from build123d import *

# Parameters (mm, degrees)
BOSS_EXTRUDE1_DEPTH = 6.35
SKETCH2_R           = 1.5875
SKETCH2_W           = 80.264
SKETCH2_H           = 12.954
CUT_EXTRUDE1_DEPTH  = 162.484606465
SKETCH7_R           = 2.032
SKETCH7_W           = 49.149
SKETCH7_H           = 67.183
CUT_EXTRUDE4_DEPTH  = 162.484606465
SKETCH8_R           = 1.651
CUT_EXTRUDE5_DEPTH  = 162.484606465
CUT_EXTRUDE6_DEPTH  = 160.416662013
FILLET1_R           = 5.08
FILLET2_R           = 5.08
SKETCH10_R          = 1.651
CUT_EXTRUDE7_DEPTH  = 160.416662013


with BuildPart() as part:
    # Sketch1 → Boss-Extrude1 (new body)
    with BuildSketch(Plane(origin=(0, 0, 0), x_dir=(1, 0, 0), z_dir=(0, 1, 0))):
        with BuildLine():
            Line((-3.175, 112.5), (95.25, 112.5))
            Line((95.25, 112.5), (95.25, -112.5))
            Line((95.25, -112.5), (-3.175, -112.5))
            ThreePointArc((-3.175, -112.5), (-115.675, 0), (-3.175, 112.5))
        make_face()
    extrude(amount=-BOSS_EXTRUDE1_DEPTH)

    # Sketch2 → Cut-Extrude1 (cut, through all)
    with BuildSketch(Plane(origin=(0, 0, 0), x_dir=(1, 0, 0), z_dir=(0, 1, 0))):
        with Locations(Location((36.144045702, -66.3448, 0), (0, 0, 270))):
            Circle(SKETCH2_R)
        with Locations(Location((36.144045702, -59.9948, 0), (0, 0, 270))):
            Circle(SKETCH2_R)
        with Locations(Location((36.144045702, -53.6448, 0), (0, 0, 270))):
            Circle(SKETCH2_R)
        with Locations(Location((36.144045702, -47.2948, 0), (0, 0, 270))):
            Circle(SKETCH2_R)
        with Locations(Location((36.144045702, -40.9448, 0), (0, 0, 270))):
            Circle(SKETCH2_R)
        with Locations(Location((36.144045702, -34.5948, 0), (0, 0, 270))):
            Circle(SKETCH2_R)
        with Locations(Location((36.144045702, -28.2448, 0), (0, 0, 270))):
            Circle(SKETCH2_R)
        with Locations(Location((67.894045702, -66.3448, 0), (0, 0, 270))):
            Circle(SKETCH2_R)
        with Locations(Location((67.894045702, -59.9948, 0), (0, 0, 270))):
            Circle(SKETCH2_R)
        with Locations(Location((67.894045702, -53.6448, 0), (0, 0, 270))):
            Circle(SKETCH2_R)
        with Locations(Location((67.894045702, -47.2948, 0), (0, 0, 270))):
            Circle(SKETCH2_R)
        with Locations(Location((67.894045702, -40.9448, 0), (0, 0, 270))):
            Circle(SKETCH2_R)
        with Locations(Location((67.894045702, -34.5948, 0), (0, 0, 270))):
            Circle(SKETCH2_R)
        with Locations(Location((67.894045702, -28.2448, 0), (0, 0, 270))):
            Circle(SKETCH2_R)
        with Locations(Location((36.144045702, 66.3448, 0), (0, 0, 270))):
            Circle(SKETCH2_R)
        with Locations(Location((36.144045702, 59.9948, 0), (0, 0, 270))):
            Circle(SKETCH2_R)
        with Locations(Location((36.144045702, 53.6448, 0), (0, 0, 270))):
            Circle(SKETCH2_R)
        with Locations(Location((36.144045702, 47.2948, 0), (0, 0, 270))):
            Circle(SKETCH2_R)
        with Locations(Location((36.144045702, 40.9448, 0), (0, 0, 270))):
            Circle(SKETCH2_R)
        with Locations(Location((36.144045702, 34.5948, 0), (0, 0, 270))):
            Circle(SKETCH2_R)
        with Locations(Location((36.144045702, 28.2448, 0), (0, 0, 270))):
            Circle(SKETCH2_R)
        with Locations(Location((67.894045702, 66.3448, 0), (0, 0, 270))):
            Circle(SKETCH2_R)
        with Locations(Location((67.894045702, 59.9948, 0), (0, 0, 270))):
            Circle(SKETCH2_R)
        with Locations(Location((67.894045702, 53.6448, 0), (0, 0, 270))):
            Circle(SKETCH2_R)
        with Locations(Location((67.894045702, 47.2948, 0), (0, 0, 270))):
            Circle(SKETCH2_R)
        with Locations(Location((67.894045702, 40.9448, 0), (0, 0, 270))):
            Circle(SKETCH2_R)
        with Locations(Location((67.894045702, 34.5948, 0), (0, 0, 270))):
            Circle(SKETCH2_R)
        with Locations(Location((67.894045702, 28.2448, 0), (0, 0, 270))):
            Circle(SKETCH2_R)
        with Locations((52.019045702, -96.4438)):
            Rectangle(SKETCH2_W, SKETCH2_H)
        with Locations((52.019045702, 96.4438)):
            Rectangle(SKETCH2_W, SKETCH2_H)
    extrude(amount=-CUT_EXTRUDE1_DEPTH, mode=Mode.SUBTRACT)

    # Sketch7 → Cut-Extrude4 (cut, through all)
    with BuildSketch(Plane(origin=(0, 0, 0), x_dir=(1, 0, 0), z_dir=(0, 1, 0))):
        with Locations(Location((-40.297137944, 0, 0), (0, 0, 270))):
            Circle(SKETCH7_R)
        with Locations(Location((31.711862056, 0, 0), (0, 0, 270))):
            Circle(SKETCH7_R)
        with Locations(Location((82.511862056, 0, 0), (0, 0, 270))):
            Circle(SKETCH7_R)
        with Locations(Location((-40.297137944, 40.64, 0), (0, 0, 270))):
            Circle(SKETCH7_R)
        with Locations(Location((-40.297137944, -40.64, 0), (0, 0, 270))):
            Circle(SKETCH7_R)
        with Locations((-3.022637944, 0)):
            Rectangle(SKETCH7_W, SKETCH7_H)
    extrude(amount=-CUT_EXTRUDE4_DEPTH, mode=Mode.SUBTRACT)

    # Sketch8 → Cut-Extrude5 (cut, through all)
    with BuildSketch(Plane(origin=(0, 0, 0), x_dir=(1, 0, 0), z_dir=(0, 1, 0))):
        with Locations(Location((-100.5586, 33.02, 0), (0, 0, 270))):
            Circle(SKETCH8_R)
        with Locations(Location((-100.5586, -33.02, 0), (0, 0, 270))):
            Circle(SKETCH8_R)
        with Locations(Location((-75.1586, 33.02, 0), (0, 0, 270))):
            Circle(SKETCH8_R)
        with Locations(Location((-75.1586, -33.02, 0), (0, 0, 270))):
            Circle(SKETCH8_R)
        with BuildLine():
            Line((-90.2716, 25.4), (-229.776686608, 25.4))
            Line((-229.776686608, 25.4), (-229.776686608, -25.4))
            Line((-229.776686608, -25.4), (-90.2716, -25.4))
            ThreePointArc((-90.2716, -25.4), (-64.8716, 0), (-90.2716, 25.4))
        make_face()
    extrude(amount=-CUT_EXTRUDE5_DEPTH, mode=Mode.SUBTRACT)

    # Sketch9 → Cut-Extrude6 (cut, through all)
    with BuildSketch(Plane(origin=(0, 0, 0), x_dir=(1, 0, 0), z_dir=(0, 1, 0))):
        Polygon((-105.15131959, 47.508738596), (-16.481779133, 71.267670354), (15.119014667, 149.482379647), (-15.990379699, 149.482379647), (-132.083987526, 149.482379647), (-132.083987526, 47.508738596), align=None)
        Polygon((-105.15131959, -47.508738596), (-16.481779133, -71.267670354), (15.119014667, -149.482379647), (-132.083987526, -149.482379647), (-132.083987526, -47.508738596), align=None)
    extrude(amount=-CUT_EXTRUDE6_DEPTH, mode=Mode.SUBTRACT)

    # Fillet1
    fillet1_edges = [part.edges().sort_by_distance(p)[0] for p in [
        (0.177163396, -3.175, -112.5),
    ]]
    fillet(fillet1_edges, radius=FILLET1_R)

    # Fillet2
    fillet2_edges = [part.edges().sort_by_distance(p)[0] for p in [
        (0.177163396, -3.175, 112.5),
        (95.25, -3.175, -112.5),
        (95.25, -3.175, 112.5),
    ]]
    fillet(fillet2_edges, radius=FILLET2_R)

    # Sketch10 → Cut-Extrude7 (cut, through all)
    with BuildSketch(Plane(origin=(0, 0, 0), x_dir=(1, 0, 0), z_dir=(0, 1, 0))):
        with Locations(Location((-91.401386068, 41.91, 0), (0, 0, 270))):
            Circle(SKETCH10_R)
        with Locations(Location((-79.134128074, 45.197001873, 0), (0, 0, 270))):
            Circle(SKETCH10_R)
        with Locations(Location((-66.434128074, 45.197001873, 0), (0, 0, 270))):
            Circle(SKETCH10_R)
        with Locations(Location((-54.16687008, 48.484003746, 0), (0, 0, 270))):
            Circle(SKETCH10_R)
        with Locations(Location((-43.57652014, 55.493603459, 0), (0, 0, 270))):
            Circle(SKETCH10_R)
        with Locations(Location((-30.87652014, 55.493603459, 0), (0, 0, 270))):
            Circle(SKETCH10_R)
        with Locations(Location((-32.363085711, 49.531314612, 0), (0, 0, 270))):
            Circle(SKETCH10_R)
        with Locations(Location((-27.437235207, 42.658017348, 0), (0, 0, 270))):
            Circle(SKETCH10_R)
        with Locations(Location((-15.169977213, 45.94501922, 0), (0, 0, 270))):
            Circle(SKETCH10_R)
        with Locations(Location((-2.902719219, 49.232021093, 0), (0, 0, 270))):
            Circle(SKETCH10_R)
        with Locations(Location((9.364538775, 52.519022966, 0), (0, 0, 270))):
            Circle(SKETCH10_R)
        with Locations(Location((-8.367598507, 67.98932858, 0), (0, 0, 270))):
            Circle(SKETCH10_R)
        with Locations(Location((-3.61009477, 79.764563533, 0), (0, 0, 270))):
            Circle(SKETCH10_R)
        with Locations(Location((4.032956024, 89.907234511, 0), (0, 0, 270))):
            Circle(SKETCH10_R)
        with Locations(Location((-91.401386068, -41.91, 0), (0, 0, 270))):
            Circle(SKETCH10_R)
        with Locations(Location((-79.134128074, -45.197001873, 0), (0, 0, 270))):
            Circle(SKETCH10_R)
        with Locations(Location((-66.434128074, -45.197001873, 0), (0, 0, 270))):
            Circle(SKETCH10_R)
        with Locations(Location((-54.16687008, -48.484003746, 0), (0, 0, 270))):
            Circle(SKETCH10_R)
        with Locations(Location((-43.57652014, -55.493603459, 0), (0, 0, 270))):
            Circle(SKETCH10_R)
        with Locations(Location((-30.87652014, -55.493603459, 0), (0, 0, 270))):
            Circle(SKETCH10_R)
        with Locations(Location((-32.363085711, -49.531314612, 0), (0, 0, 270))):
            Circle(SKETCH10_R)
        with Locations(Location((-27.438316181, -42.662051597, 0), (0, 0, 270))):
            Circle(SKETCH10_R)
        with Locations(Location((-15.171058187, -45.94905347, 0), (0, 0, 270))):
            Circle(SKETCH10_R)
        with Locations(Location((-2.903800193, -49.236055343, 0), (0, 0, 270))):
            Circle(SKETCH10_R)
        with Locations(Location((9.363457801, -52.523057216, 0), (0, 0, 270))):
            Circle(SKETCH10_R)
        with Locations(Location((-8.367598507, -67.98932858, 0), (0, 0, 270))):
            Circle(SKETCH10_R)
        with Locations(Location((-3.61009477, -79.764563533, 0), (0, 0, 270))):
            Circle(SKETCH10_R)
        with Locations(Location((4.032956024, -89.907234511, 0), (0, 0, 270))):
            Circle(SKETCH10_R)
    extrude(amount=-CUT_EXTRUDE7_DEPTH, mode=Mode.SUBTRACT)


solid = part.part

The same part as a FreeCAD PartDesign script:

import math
import FreeCAD as App
import Part
import Sketcher
Q = App.Units.Quantity


def edges_at(feature, points):
    """Names of the edges that pass closest to the given points."""
    edges = feature.Shape.Edges
    near = lambda p: min(range(len(edges)), key=lambda i: edges[i].distToShape(Part.Vertex(*p))[0])
    return sorted({f"Edge{near(p) + 1}" for p in points})

doc = App.newDocument("Part")
body = doc.addObject("PartDesign::Body", "Body")

# Sketch on XZ plane
sketch1 = doc.addObject("Sketcher::SketchObject", "Sketch")
body.addObject(sketch1)
sketch1.AttachmentSupport = (doc.XZ_Plane, [""])
sketch1.MapMode = "FlatFace"
sketch1.addGeometry([
    Part.LineSegment(App.Vector(95, -112, 0), App.Vector(-3, -112, 0)),
    Part.ArcOfCircle(Part.Circle(App.Vector(-3, 0, 0), App.Vector(0, 0, 1), 112), math.radians(90), math.radians(270)),
    Part.LineSegment(App.Vector(-3, 112, 0), App.Vector(95, 112, 0)),
    Part.LineSegment(App.Vector(95, 112, 0), App.Vector(95, -112, 0)),
], False)
sketch1.addConstraint([
    Sketcher.Constraint("Tangent", 0, 2, 1, 2),
    Sketcher.Constraint("Tangent", 1, 1, 2, 1),
    Sketcher.Constraint("Coincident", 2, 2, 3, 1),
    Sketcher.Constraint("Coincident", 3, 2, 0, 1),
    Sketcher.Constraint("Horizontal", 0),
    Sketcher.Constraint("Horizontal", 2),
    Sketcher.Constraint("Vertical", 3),
    Sketcher.Constraint("PointOnObject", 1, 3, -1),
    Sketcher.Constraint("DistanceX", 0, 2, 0, 1, Q("3.875 in")),
    Sketcher.Constraint("DistanceX", -1, 1, 2, 2, Q("3.75 in")),
    Sketcher.Constraint("Radius", 1, 112.5),
])
pad1 = doc.addObject("PartDesign::Pad", "Pad")
body.addObject(pad1)
pad1.Profile = sketch1
pad1.Length = Q("0.25 in")

# Sketch on XZ plane
sketch2 = doc.addObject("Sketcher::SketchObject", "Sketch001")
body.addObject(sketch2)
sketch2.AttachmentSupport = (doc.XZ_Plane, [""])
sketch2.MapMode = "FlatFace"
sketch2.addGeometry([
    Part.Circle(App.Vector(36.1, 66.3, 0), App.Vector(0, 0, 1), 1.6),  # 0
    Part.Circle(App.Vector(36.1, 60, 0), App.Vector(0, 0, 1), 1.6),  # 1
    Part.Circle(App.Vector(36.1, 53.6, 0), App.Vector(0, 0, 1), 1.6),  # 2
    Part.Circle(App.Vector(36.1, 47.3, 0), App.Vector(0, 0, 1), 1.6),  # 3
    Part.Circle(App.Vector(36.1, 40.9, 0), App.Vector(0, 0, 1), 1.6),  # 4
    Part.Circle(App.Vector(36.1, 34.6, 0), App.Vector(0, 0, 1), 1.6),  # 5
    Part.Circle(App.Vector(36.1, 28.2, 0), App.Vector(0, 0, 1), 1.6),  # 6
    Part.Circle(App.Vector(67.9, 66.3, 0), App.Vector(0, 0, 1), 1.6),  # 7
    Part.Circle(App.Vector(67.9, 60, 0), App.Vector(0, 0, 1), 1.6),  # 8
    Part.Circle(App.Vector(67.9, 53.6, 0), App.Vector(0, 0, 1), 1.6),  # 9
    Part.Circle(App.Vector(67.9, 47.3, 0), App.Vector(0, 0, 1), 1.6),  # 10
    Part.Circle(App.Vector(67.9, 40.9, 0), App.Vector(0, 0, 1), 1.6),  # 11
    Part.Circle(App.Vector(67.9, 34.6, 0), App.Vector(0, 0, 1), 1.6),  # 12
    Part.Circle(App.Vector(67.9, 28.2, 0), App.Vector(0, 0, 1), 1.6),  # 13
    Part.Circle(App.Vector(36.1, -66.3, 0), App.Vector(0, 0, 1), 1.6),  # 14
    Part.Circle(App.Vector(36.1, -60, 0), App.Vector(0, 0, 1), 1.6),  # 15
    Part.Circle(App.Vector(36.1, -53.6, 0), App.Vector(0, 0, 1), 1.6),  # 16
    Part.Circle(App.Vector(36.1, -47.3, 0), App.Vector(0, 0, 1), 1.6),  # 17
    Part.Circle(App.Vector(36.1, -40.9, 0), App.Vector(0, 0, 1), 1.6),  # 18
    Part.Circle(App.Vector(36.1, -34.6, 0), App.Vector(0, 0, 1), 1.6),  # 19
    Part.Circle(App.Vector(36.1, -28.2, 0), App.Vector(0, 0, 1), 1.6),  # 20
    Part.Circle(App.Vector(67.9, -66.3, 0), App.Vector(0, 0, 1), 1.6),  # 21
    Part.Circle(App.Vector(67.9, -60, 0), App.Vector(0, 0, 1), 1.6),  # 22
    Part.Circle(App.Vector(67.9, -53.6, 0), App.Vector(0, 0, 1), 1.6),  # 23
    Part.Circle(App.Vector(67.9, -47.3, 0), App.Vector(0, 0, 1), 1.6),  # 24
    Part.Circle(App.Vector(67.9, -40.9, 0), App.Vector(0, 0, 1), 1.6),  # 25
    Part.Circle(App.Vector(67.9, -34.6, 0), App.Vector(0, 0, 1), 1.6),  # 26
    Part.Circle(App.Vector(67.9, -28.2, 0), App.Vector(0, 0, 1), 1.6),  # 27
    Part.LineSegment(App.Vector(11.9, 90, 0), App.Vector(11.9, 102.9, 0)),  # 28
    Part.LineSegment(App.Vector(11.9, 102.9, 0), App.Vector(92.2, 102.9, 0)),  # 29
    Part.LineSegment(App.Vector(92.2, 102.9, 0), App.Vector(92.2, 90, 0)),  # 30
    Part.LineSegment(App.Vector(92.2, 90, 0), App.Vector(11.9, 90, 0)),  # 31
    Part.LineSegment(App.Vector(11.9, -102.9, 0), App.Vector(11.9, -90, 0)),  # 32
    Part.LineSegment(App.Vector(11.9, -90, 0), App.Vector(92.2, -90, 0)),  # 33
    Part.LineSegment(App.Vector(92.2, -90, 0), App.Vector(92.2, -102.9, 0)),  # 34
    Part.LineSegment(App.Vector(92.2, -102.9, 0), App.Vector(11.9, -102.9, 0)),  # 35
], False)
sketch2.addConstraint([
    Sketcher.Constraint("Coincident", 28, 2, 29, 1),
    Sketcher.Constraint("Coincident", 29, 2, 30, 1),
    Sketcher.Constraint("Coincident", 30, 2, 31, 1),
    Sketcher.Constraint("Coincident", 31, 2, 28, 1),
    Sketcher.Constraint("Coincident", 32, 2, 33, 1),
    Sketcher.Constraint("Coincident", 33, 2, 34, 1),
    Sketcher.Constraint("Coincident", 34, 2, 35, 1),
    Sketcher.Constraint("Coincident", 35, 2, 32, 1),
    Sketcher.Constraint("Vertical", 28),
    Sketcher.Constraint("Horizontal", 29),
    Sketcher.Constraint("Vertical", 30),
    Sketcher.Constraint("Horizontal", 31),
    Sketcher.Constraint("Vertical", 32),
    Sketcher.Constraint("Horizontal", 33),
    Sketcher.Constraint("Vertical", 34),
    Sketcher.Constraint("Horizontal", 35),
    Sketcher.Constraint("Equal", 0, 1),
    Sketcher.Constraint("Equal", 1, 2),
    Sketcher.Constraint("Equal", 2, 3),
    Sketcher.Constraint("Equal", 3, 4),
    Sketcher.Constraint("Equal", 4, 5),
    Sketcher.Constraint("Equal", 5, 6),
    Sketcher.Constraint("Equal", 6, 7),
    Sketcher.Constraint("Equal", 7, 8),
    Sketcher.Constraint("Equal", 8, 9),
    Sketcher.Constraint("Equal", 9, 10),
    Sketcher.Constraint("Equal", 10, 11),
    Sketcher.Constraint("Equal", 11, 12),
    Sketcher.Constraint("Equal", 12, 13),
    Sketcher.Constraint("Equal", 13, 14),
    Sketcher.Constraint("Equal", 14, 15),
    Sketcher.Constraint("Equal", 15, 16),
    Sketcher.Constraint("Equal", 16, 17),
    Sketcher.Constraint("Equal", 17, 18),
    Sketcher.Constraint("Equal", 18, 19),
    Sketcher.Constraint("Equal", 19, 20),
    Sketcher.Constraint("Equal", 20, 21),
    Sketcher.Constraint("Equal", 21, 22),
    Sketcher.Constraint("Equal", 22, 23),
    Sketcher.Constraint("Equal", 23, 24),
    Sketcher.Constraint("Equal", 24, 25),
    Sketcher.Constraint("Equal", 25, 26),
    Sketcher.Constraint("Equal", 26, 27),
    Sketcher.Constraint("Symmetric", 0, 3, 14, 3, -1),
    Sketcher.Constraint("Symmetric", 1, 3, 15, 3, -1),
    Sketcher.Constraint("Symmetric", 2, 3, 16, 3, -1),
    Sketcher.Constraint("Symmetric", 3, 3, 17, 3, -1),
    Sketcher.Constraint("Symmetric", 4, 3, 18, 3, -1),
    Sketcher.Constraint("Symmetric", 5, 3, 19, 3, -1),
    Sketcher.Constraint("Symmetric", 6, 3, 20, 3, -1),
    Sketcher.Constraint("Symmetric", 7, 3, 21, 3, -1),
    Sketcher.Constraint("Symmetric", 8, 3, 22, 3, -1),
    Sketcher.Constraint("Symmetric", 9, 3, 23, 3, -1),
    Sketcher.Constraint("Symmetric", 10, 3, 24, 3, -1),
    Sketcher.Constraint("Symmetric", 11, 3, 25, 3, -1),
    Sketcher.Constraint("Symmetric", 12, 3, 26, 3, -1),
    Sketcher.Constraint("Symmetric", 13, 3, 27, 3, -1),
    Sketcher.Constraint("Symmetric", 31, 2, 32, 2, -1),
    Sketcher.Constraint("Symmetric", 29, 2, 34, 2, -1),
    Sketcher.Constraint("Horizontal", 0, 3, 7, 3),
    Sketcher.Constraint("Horizontal", 1, 3, 8, 3),
    Sketcher.Constraint("Horizontal", 2, 3, 9, 3),
    Sketcher.Constraint("Horizontal", 3, 3, 10, 3),
    Sketcher.Constraint("Horizontal", 4, 3, 11, 3),
    Sketcher.Constraint("Horizontal", 5, 3, 12, 3),
    Sketcher.Constraint("Horizontal", 6, 3, 13, 3),
    Sketcher.Constraint("Vertical", 0, 3, 1, 3),
    Sketcher.Constraint("Vertical", 1, 3, 2, 3),
    Sketcher.Constraint("Vertical", 2, 3, 3, 3),
    Sketcher.Constraint("Vertical", 3, 3, 4, 3),
    Sketcher.Constraint("Vertical", 4, 3, 5, 3),
    Sketcher.Constraint("Vertical", 5, 3, 6, 3),
    Sketcher.Constraint("Vertical", 7, 3, 8, 3),
    Sketcher.Constraint("Vertical", 8, 3, 9, 3),
    Sketcher.Constraint("Vertical", 9, 3, 10, 3),
    Sketcher.Constraint("Vertical", 10, 3, 11, 3),
    Sketcher.Constraint("Vertical", 11, 3, 12, 3),
    Sketcher.Constraint("Vertical", 12, 3, 13, 3),
    Sketcher.Constraint("Diameter", 0, Q("0.125 in")),
    Sketcher.Constraint("DistanceY", 4, 3, 0, 3, Q("1 in")),
    Sketcher.Constraint("DistanceY", 5, 3, 1, 3, Q("1 in")),
    Sketcher.Constraint("DistanceY", 6, 3, 2, 3, Q("1 in")),
    Sketcher.Constraint("DistanceX", 29, 1, 29, 2, Q("3.16 in")),
    Sketcher.Constraint("DistanceY", 28, 1, 28, 2, Q("0.51 in")),
    Sketcher.Constraint("DistanceY", 2, 3, 0, 3, Q("0.5 in")),
    Sketcher.Constraint("DistanceY", 3, 3, 1, 3, Q("0.5 in")),
    Sketcher.Constraint("DistanceY", 1, 3, 0, 3, Q("0.25 in")),
    Sketcher.Constraint("DistanceX", 0, 3, 7, 3, Q("1.25 in")),
    Sketcher.Constraint("DistanceY", 0, 3, 28, 2, Q("1.44 in")),
    Sketcher.Constraint("DistanceY", -1, 1, 0, 3, Q("2.612 in")),
    Sketcher.Constraint("DistanceX", 28, 2, 0, 3, Q("0.955 in")),
    Sketcher.Constraint("DistanceX", -1, 1, 0, 3, 36.144046),
])
pocket1 = doc.addObject("PartDesign::Pocket", "Pocket")
body.addObject(pocket1)
pocket1.Profile = sketch2
pocket1.Type = "ThroughAll"
pocket1.Reversed = True

# Sketch on XZ plane
sketch3 = doc.addObject("Sketcher::SketchObject", "Sketch002")
body.addObject(sketch3)
sketch3.AttachmentSupport = (doc.XZ_Plane, [""])
sketch3.MapMode = "FlatFace"
sketch3.addGeometry([
    Part.Circle(App.Vector(-40.3, 0, 0), App.Vector(0, 0, 1), 2),  # 0
    Part.Circle(App.Vector(31.7, 0, 0), App.Vector(0, 0, 1), 2),  # 1
    Part.Circle(App.Vector(82.5, 0, 0), App.Vector(0, 0, 1), 2),  # 2
    Part.Circle(App.Vector(-40.3, -40.6, 0), App.Vector(0, 0, 1), 2),  # 3
    Part.Circle(App.Vector(-40.3, 40.6, 0), App.Vector(0, 0, 1), 2),  # 4
    Part.LineSegment(App.Vector(-27.6, -33.6, 0), App.Vector(-27.6, 33.6, 0)),  # 5
    Part.LineSegment(App.Vector(-27.6, 33.6, 0), App.Vector(21.6, 33.6, 0)),  # 6
    Part.LineSegment(App.Vector(21.6, 33.6, 0), App.Vector(21.6, -33.6, 0)),  # 7
    Part.LineSegment(App.Vector(21.6, -33.6, 0), App.Vector(-27.6, -33.6, 0)),  # 8
], False)
sketch3.addConstraint([
    Sketcher.Constraint("Coincident", 5, 2, 6, 1),
    Sketcher.Constraint("Coincident", 6, 2, 7, 1),
    Sketcher.Constraint("Coincident", 7, 2, 8, 1),
    Sketcher.Constraint("Coincident", 8, 2, 5, 1),
    Sketcher.Constraint("Vertical", 5),
    Sketcher.Constraint("Horizontal", 6),
    Sketcher.Constraint("Vertical", 7),
    Sketcher.Constraint("Horizontal", 8),
    Sketcher.Constraint("Equal", 0, 1),
    Sketcher.Constraint("Equal", 1, 2),
    Sketcher.Constraint("Equal", 2, 3),
    Sketcher.Constraint("Equal", 3, 4),
    Sketcher.Constraint("Symmetric", 3, 3, 4, 3, -1),
    Sketcher.Constraint("PointOnObject", 0, 3, -1),
    Sketcher.Constraint("PointOnObject", 1, 3, -1),
    Sketcher.Constraint("PointOnObject", 2, 3, -1),
    Sketcher.Constraint("Vertical", 0, 3, 3, 3),
    Sketcher.Constraint("Diameter", 0, Q("0.16 in")),
    Sketcher.Constraint("DistanceX", 1, 3, 2, 3, Q("2 in")),
    Sketcher.Constraint("DistanceY", 3, 3, -1, 1, Q("1.6 in")),
    Sketcher.Constraint("DistanceX", 4, 3, 5, 2, Q("0.5 in")),
    Sketcher.Constraint("DistanceX", 6, 2, 1, 3, Q("0.4 in")),
    Sketcher.Constraint("DistanceX", 6, 1, 6, 2, Q("1.935 in")),
    Sketcher.Constraint("DistanceY", 5, 1, 5, 2, Q("2.645 in")),
    Sketcher.Constraint("DistanceY", -1, 1, 5, 2, Q("1.3225 in")),
    Sketcher.Constraint("DistanceX", 0, 3, -1, 1, 40.297138),
])
pocket2 = doc.addObject("PartDesign::Pocket", "Pocket001")
body.addObject(pocket2)
pocket2.Profile = sketch3
pocket2.Type = "ThroughAll"
pocket2.Reversed = True

# Sketch on XZ plane
sketch4 = doc.addObject("Sketcher::SketchObject", "Sketch003")
body.addObject(sketch4)
sketch4.AttachmentSupport = (doc.XZ_Plane, [""])
sketch4.MapMode = "FlatFace"
sketch4.addGeometry([
    Part.Circle(App.Vector(-100.6, -33, 0), App.Vector(0, 0, 1), 1.7),  # 0
    Part.Circle(App.Vector(-100.6, 33, 0), App.Vector(0, 0, 1), 1.7),  # 1
    Part.Circle(App.Vector(-75.2, -33, 0), App.Vector(0, 0, 1), 1.7),  # 2
    Part.Circle(App.Vector(-75.2, 33, 0), App.Vector(0, 0, 1), 1.7),  # 3
    Part.LineSegment(App.Vector(-90.3, -25.4, 0), App.Vector(-229.8, -25.4, 0)),  # 4
    Part.LineSegment(App.Vector(-229.8, -25.4, 0), App.Vector(-229.8, 25.4, 0)),  # 5
    Part.LineSegment(App.Vector(-229.8, 25.4, 0), App.Vector(-90.3, 25.4, 0)),  # 6
    Part.ArcOfCircle(Part.Circle(App.Vector(-90.3, 0, 0), App.Vector(0, 0, 1), 25.4), math.radians(-90), math.radians(90)),  # 7
], False)
sketch4.addConstraint([
    Sketcher.Constraint("Coincident", 4, 2, 5, 1),
    Sketcher.Constraint("Coincident", 5, 2, 6, 1),
    Sketcher.Constraint("Tangent", 6, 2, 7, 2),
    Sketcher.Constraint("Tangent", 7, 1, 4, 1),
    Sketcher.Constraint("Horizontal", 4),
    Sketcher.Constraint("Vertical", 5),
    Sketcher.Constraint("Horizontal", 6),
    Sketcher.Constraint("Equal", 0, 1),
    Sketcher.Constraint("Equal", 1, 2),
    Sketcher.Constraint("Equal", 2, 3),
    Sketcher.Constraint("Symmetric", 0, 3, 1, 3, -1),
    Sketcher.Constraint("Symmetric", 2, 3, 3, 3, -1),
    Sketcher.Constraint("PointOnObject", 7, 3, -1),
    Sketcher.Constraint("Horizontal", 0, 3, 2, 3),
    Sketcher.Constraint("Radius", 7, Q("1 in")),
    Sketcher.Constraint("Diameter", 0, Q("0.13 in")),
    Sketcher.Constraint("DistanceX", 0, 3, 2, 3, Q("1 in")),
    Sketcher.Constraint("DistanceY", 0, 3, -1, 1, Q("1.3 in")),
    Sketcher.Constraint("DistanceX", 0, 3, -1, 1, Q("3.959 in")),
    Sketcher.Constraint("DistanceX", 7, 3, -1, 1, Q("3.554 in")),
    Sketcher.Constraint("DistanceX", 4, 2, 4, 1, 139.505087),
])
pocket3 = doc.addObject("PartDesign::Pocket", "Pocket002")
body.addObject(pocket3)
pocket3.Profile = sketch4
pocket3.Type = "ThroughAll"
pocket3.Reversed = True

# Sketch on XZ plane
sketch5 = doc.addObject("Sketcher::SketchObject", "Sketch004")
body.addObject(sketch5)
sketch5.AttachmentSupport = (doc.XZ_Plane, [""])
sketch5.MapMode = "FlatFace"
sketch5.addGeometry([
    Part.LineSegment(App.Vector(-105, -48, 0), App.Vector(-16, -71, 0)),  # 0
    Part.LineSegment(App.Vector(-16, -71, 0), App.Vector(15, -149, 0)),  # 1
    Part.LineSegment(App.Vector(15, -149, 0), App.Vector(-132, -149, 0)),  # 2
    Part.LineSegment(App.Vector(-132, -149, 0), App.Vector(-132, -48, 0)),  # 3
    Part.LineSegment(App.Vector(-132, -48, 0), App.Vector(-105, -48, 0)),  # 4
    Part.LineSegment(App.Vector(-16, 71, 0), App.Vector(-105, 48, 0)),  # 5
    Part.LineSegment(App.Vector(-105, 48, 0), App.Vector(-132, 48, 0)),  # 6
    Part.LineSegment(App.Vector(-132, 48, 0), App.Vector(-132, 149, 0)),  # 7
    Part.LineSegment(App.Vector(-132, 149, 0), App.Vector(15, 149, 0)),  # 8
    Part.LineSegment(App.Vector(15, 149, 0), App.Vector(-16, 71, 0)),  # 9
], False)
sketch5.addConstraint([
    Sketcher.Constraint("Coincident", 0, 2, 1, 1),
    Sketcher.Constraint("Coincident", 1, 2, 2, 1),
    Sketcher.Constraint("Coincident", 2, 2, 3, 1),
    Sketcher.Constraint("Coincident", 3, 2, 4, 1),
    Sketcher.Constraint("Coincident", 4, 2, 0, 1),
    Sketcher.Constraint("Coincident", 5, 2, 6, 1),
    Sketcher.Constraint("Coincident", 6, 2, 7, 1),
    Sketcher.Constraint("Coincident", 7, 2, 8, 1),
    Sketcher.Constraint("Coincident", 8, 2, 9, 1),
    Sketcher.Constraint("Coincident", 9, 2, 5, 1),
    Sketcher.Constraint("Horizontal", 2),
    Sketcher.Constraint("Vertical", 3),
    Sketcher.Constraint("Horizontal", 4),
    Sketcher.Constraint("Horizontal", 6),
    Sketcher.Constraint("Vertical", 7),
    Sketcher.Constraint("Horizontal", 8),
    Sketcher.Constraint("Symmetric", 4, 2, 5, 2, -1),
    Sketcher.Constraint("Symmetric", 2, 2, 7, 2, -1),
    Sketcher.Constraint("Symmetric", 0, 2, 9, 2, -1),
    Sketcher.Constraint("Vertical", 1, 2, 8, 2),
    Sketcher.Constraint("Angle", 0, Q("-15 deg")),
    Sketcher.Constraint("Angle", 1, Q("-68 deg")),
    Sketcher.Constraint("DistanceY", 3, 1, 3, 2, 101.973641),
    Sketcher.Constraint("Distance", 1, 84.357281),
    Sketcher.Constraint("DistanceX", 2, 2, 2, 1, 147.203002),
    Sketcher.Constraint("DistanceX", 0, 2, -1, 1, 16.481779),
    Sketcher.Constraint("DistanceY", 0, 2, -1, 1, 71.26767),
])
pocket4 = doc.addObject("PartDesign::Pocket", "Pocket003")
body.addObject(pocket4)
pocket4.Profile = sketch5
pocket4.Type = "ThroughAll"
pocket4.Reversed = True
doc.recompute()

fillet = doc.addObject("PartDesign::Fillet", "Fillet")
body.addObject(fillet)
fillet.Base = (pocket4, edges_at(pocket4, [(0.177, -3.175, -112.5)]))
fillet.Radius = Q("0.2 in")
doc.recompute()

fillet2 = doc.addObject("PartDesign::Fillet", "Fillet001")
body.addObject(fillet2)
fillet2.Base = (fillet, edges_at(fillet, [(0.177, -3.175, 112.5), (95.25, -3.175, -112.5), (95.25, -3.175, 112.5)]))
fillet2.Radius = Q("0.2 in")

# Sketch on XZ plane
sketch6 = doc.addObject("Sketcher::SketchObject", "Sketch005")
body.addObject(sketch6)
sketch6.AttachmentSupport = (doc.XZ_Plane, [""])
sketch6.MapMode = "FlatFace"
sketch6.addGeometry([
    Part.Circle(App.Vector(-91.4, -41.9, 0), App.Vector(0, 0, 1), 1.7),  # 0
    Part.Circle(App.Vector(-79.1, -45.2, 0), App.Vector(0, 0, 1), 1.7),  # 1
    Part.Circle(App.Vector(-66.4, -45.2, 0), App.Vector(0, 0, 1), 1.7),  # 2
    Part.Circle(App.Vector(-54.2, -48.5, 0), App.Vector(0, 0, 1), 1.7),  # 3
    Part.Circle(App.Vector(-43.6, -55.5, 0), App.Vector(0, 0, 1), 1.7),  # 4
    Part.Circle(App.Vector(-30.9, -55.5, 0), App.Vector(0, 0, 1), 1.7),  # 5
    Part.Circle(App.Vector(-32.4, -49.5, 0), App.Vector(0, 0, 1), 1.7),  # 6
    Part.Circle(App.Vector(-27.4, -42.7, 0), App.Vector(0, 0, 1), 1.7),  # 7
    Part.Circle(App.Vector(-15.2, -45.9, 0), App.Vector(0, 0, 1), 1.7),  # 8
    Part.Circle(App.Vector(-2.9, -49.2, 0), App.Vector(0, 0, 1), 1.7),  # 9
    Part.Circle(App.Vector(9.4, -52.5, 0), App.Vector(0, 0, 1), 1.7),  # 10
    Part.Circle(App.Vector(-8.4, -68, 0), App.Vector(0, 0, 1), 1.7),  # 11
    Part.Circle(App.Vector(-3.6, -79.8, 0), App.Vector(0, 0, 1), 1.7),  # 12
    Part.Circle(App.Vector(4, -89.9, 0), App.Vector(0, 0, 1), 1.7),  # 13
    Part.Circle(App.Vector(-91.4, 41.9, 0), App.Vector(0, 0, 1), 1.7),  # 14
    Part.Circle(App.Vector(-79.1, 45.2, 0), App.Vector(0, 0, 1), 1.7),  # 15
    Part.Circle(App.Vector(-66.4, 45.2, 0), App.Vector(0, 0, 1), 1.7),  # 16
    Part.Circle(App.Vector(-54.2, 48.5, 0), App.Vector(0, 0, 1), 1.7),  # 17
    Part.Circle(App.Vector(-43.6, 55.5, 0), App.Vector(0, 0, 1), 1.7),  # 18
    Part.Circle(App.Vector(-30.9, 55.5, 0), App.Vector(0, 0, 1), 1.7),  # 19
    Part.Circle(App.Vector(-32.4, 49.5, 0), App.Vector(0, 0, 1), 1.7),  # 20
    Part.Circle(App.Vector(-27.4, 42.7, 0), App.Vector(0, 0, 1), 1.7),  # 21
    Part.Circle(App.Vector(-15.2, 45.9, 0), App.Vector(0, 0, 1), 1.7),  # 22
    Part.Circle(App.Vector(-2.9, 49.2, 0), App.Vector(0, 0, 1), 1.7),  # 23
    Part.Circle(App.Vector(9.4, 52.5, 0), App.Vector(0, 0, 1), 1.7),  # 24
    Part.Circle(App.Vector(-8.4, 68, 0), App.Vector(0, 0, 1), 1.7),  # 25
    Part.Circle(App.Vector(-3.6, 79.8, 0), App.Vector(0, 0, 1), 1.7),  # 26
    Part.Circle(App.Vector(4, 89.9, 0), App.Vector(0, 0, 1), 1.7),  # 27
], False)
sketch6.addConstraint([
    Sketcher.Constraint("Equal", 0, 1),
    Sketcher.Constraint("Equal", 1, 2),
    Sketcher.Constraint("Equal", 2, 3),
    Sketcher.Constraint("Equal", 3, 4),
    Sketcher.Constraint("Equal", 4, 5),
    Sketcher.Constraint("Equal", 5, 6),
    Sketcher.Constraint("Equal", 6, 7),
    Sketcher.Constraint("Equal", 7, 8),
    Sketcher.Constraint("Equal", 8, 9),
    Sketcher.Constraint("Equal", 9, 10),
    Sketcher.Constraint("Equal", 10, 11),
    Sketcher.Constraint("Equal", 11, 12),
    Sketcher.Constraint("Equal", 12, 13),
    Sketcher.Constraint("Equal", 13, 14),
    Sketcher.Constraint("Equal", 14, 15),
    Sketcher.Constraint("Equal", 15, 16),
    Sketcher.Constraint("Equal", 16, 17),
    Sketcher.Constraint("Equal", 17, 18),
    Sketcher.Constraint("Equal", 18, 19),
    Sketcher.Constraint("Equal", 19, 20),
    Sketcher.Constraint("Equal", 20, 21),
    Sketcher.Constraint("Equal", 21, 22),
    Sketcher.Constraint("Equal", 22, 23),
    Sketcher.Constraint("Equal", 23, 24),
    Sketcher.Constraint("Equal", 24, 25),
    Sketcher.Constraint("Equal", 25, 26),
    Sketcher.Constraint("Equal", 26, 27),
    Sketcher.Constraint("Symmetric", 0, 3, 14, 3, -1),
    Sketcher.Constraint("Symmetric", 1, 3, 15, 3, -1),
    Sketcher.Constraint("Symmetric", 2, 3, 16, 3, -1),
    Sketcher.Constraint("Symmetric", 3, 3, 17, 3, -1),
    Sketcher.Constraint("Symmetric", 4, 3, 18, 3, -1),
    Sketcher.Constraint("Symmetric", 5, 3, 19, 3, -1),
    Sketcher.Constraint("Symmetric", 6, 3, 20, 3, -1),
    Sketcher.Constraint("Symmetric", 11, 3, 25, 3, -1),
    Sketcher.Constraint("Symmetric", 12, 3, 26, 3, -1),
    Sketcher.Constraint("Symmetric", 13, 3, 27, 3, -1),
    Sketcher.Constraint("Horizontal", 1, 3, 2, 3),
    Sketcher.Constraint("Horizontal", 4, 3, 5, 3),
    Sketcher.Constraint("Diameter", 0, Q("0.13 in")),
    Sketcher.Constraint("DistanceX", 1, 3, 2, 3, Q("0.5 in")),
    Sketcher.Constraint("DistanceX", 4, 3, 5, 3, Q("0.5 in")),
    Sketcher.Constraint("DistanceY", 0, 3, 14, 3, Q("3.3 in")),
    Sketcher.Constraint("DistanceY", 1, 3, -1, 1, 45.197002),
    Sketcher.Constraint("DistanceX", 11, 3, -1, 1, 8.367599),
    Sketcher.Constraint("DistanceX", 23, 3, -1, 1, 2.9038),
    Sketcher.Constraint("DistanceY", 3, 3, 2, 3, 3.287002),
    Sketcher.Constraint("DistanceY", 4, 3, 3, 3, 7.0096),
    Sketcher.Constraint("DistanceY", 8, 3, 7, 3, 3.287002),
    Sketcher.Constraint("DistanceY", 9, 3, 8, 3, 3.287002),
    Sketcher.Constraint("DistanceX", 5, 3, 9, 3, 27.973801),
    Sketcher.Constraint("DistanceY", 10, 3, 9, 3, 3.287002),
    Sketcher.Constraint("DistanceY", 21, 3, 22, 3, 3.287002),
    Sketcher.Constraint("DistanceY", 22, 3, 23, 3, 3.287002),
    Sketcher.Constraint("DistanceY", 23, 3, 24, 3, 3.287002),
    Sketcher.Constraint("DistanceX", 27, 3, 24, 3, 5.330502),
    Sketcher.Constraint("DistanceX", 1, 3, -1, 1, 79.134128),
    Sketcher.Constraint("DistanceX", 3, 3, -1, 1, 54.16687),
    Sketcher.Constraint("DistanceX", 4, 3, -1, 1, 43.57652),
    Sketcher.Constraint("DistanceY", 8, 3, -1, 1, 45.945019),
    Sketcher.Constraint("DistanceX", -1, 1, 10, 3, 9.364539),
    Sketcher.Constraint("DistanceY", 11, 3, -1, 1, 67.989329),
    Sketcher.Constraint("DistanceY", -1, 1, 21, 3, 42.662052),
    Sketcher.Constraint("DistanceX", 22, 3, -1, 1, 15.171058),
    Sketcher.Constraint("DistanceY", 5, 3, 6, 3, 5.962289),
    Sketcher.Constraint("DistanceX", 6, 3, 7, 3, 4.925851),
    Sketcher.Constraint("DistanceX", 6, 3, 8, 3, 17.193108),
    Sketcher.Constraint("DistanceX", 8, 3, 11, 3, 6.802379),
    Sketcher.Constraint("DistanceY", 12, 3, 10, 3, 27.245541),
    Sketcher.Constraint("DistanceX", 12, 3, 13, 3, 7.643051),
    Sketcher.Constraint("DistanceY", 13, 3, 12, 3, 10.142671),
    Sketcher.Constraint("DistanceX", 14, 3, 7, 3, 63.964151),
    Sketcher.Constraint("DistanceX", 20, 3, 21, 3, 4.92477),
    Sketcher.Constraint("DistanceX", 12, 3, -1, 1, 3.610095),
])
pocket5 = doc.addObject("PartDesign::Pocket", "Pocket004")
body.addObject(pocket5)
pocket5.Profile = sketch6
pocket5.Type = "ThroughAll"
pocket5.Reversed = True

doc.recompute()
